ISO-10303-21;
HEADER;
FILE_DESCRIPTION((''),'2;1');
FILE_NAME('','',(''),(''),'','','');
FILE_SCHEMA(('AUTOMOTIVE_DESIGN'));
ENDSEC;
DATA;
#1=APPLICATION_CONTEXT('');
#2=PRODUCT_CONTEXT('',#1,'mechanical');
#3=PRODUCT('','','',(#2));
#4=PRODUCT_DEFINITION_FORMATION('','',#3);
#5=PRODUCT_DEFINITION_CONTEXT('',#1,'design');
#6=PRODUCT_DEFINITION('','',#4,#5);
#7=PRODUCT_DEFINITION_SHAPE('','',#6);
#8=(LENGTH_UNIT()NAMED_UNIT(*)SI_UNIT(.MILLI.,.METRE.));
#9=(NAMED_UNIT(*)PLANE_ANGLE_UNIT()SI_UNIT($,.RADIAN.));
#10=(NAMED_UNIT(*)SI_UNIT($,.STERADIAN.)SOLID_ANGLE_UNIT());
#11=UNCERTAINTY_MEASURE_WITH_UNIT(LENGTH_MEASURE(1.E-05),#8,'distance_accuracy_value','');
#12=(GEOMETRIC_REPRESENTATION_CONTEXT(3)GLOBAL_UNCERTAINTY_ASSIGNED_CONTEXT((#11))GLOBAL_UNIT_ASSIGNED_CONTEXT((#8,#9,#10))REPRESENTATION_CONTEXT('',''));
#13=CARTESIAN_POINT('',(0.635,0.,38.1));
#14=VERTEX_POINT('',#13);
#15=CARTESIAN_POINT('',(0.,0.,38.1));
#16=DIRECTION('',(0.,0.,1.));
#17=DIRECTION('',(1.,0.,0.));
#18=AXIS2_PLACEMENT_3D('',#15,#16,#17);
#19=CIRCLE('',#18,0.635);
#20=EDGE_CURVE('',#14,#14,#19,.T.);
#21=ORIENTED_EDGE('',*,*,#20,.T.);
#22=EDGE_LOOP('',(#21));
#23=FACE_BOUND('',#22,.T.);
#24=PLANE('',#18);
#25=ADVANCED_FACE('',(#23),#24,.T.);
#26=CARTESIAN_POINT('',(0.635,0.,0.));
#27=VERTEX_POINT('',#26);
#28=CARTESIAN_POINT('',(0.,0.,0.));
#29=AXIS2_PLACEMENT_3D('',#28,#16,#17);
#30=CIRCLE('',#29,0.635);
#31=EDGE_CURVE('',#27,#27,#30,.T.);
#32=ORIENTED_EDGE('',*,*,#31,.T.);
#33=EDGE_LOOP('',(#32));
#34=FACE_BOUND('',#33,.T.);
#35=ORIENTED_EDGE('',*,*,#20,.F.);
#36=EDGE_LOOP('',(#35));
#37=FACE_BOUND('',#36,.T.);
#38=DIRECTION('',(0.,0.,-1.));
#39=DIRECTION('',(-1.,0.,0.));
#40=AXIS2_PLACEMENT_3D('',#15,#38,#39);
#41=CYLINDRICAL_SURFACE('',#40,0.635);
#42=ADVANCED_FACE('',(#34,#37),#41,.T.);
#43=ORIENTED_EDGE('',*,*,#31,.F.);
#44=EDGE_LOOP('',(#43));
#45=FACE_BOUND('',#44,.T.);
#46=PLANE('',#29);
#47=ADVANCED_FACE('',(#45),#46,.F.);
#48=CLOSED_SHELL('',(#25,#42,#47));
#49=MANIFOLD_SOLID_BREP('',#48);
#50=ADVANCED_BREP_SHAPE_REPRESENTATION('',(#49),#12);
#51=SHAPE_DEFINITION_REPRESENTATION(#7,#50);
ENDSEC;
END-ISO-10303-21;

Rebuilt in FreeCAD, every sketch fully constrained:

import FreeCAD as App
import Part
import Sketcher
from FreeCAD import Vector
Q = App.Units.Quantity

doc = App.newDocument("Part")
body = doc.addObject("PartDesign::Body", "Body")

# Sketch on XY plane
sketch1 = body.newObject("Sketcher::SketchObject", "Sketch")
sketch1.AttachmentSupport = (doc.getObject("XY_Plane"), [""])
sketch1.MapMode = "FlatFace"
sketch1.addGeometry(Part.Circle(Vector(0, 0, 0), Vector(0, 0, 1), 0.635), False)
sketch1.addConstraint(Sketcher.Constraint("Coincident", 0, 3, -1, 1))
sketch1.addConstraint(Sketcher.Constraint("Diameter", 0, Q("0.05 in")))
pad1 = body.newObject("PartDesign::Pad", "Pad")
pad1.Profile = sketch1
pad1.Length = Q("1.5 in")

doc.recompute()
